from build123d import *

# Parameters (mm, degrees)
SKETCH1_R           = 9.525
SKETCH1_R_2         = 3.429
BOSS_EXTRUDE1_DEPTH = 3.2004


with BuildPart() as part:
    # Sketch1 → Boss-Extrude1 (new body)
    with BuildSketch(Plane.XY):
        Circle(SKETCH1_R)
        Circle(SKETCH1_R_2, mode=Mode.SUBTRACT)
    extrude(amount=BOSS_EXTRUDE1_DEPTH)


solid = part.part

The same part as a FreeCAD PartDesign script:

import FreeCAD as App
import Part
import Sketcher
Q = App.Units.Quantity

doc = App.newDocument("Part")
body = doc.addObject("PartDesign::Body", "Body")

sketch1 = doc.addObject("Sketcher::SketchObject", "Sketch")
body.addObject(sketch1)
sketch1.AttachmentSupport = (doc.XY_Plane, [""])
sketch1.MapMode = "FlatFace"
sketch1.addGeometry(Part.Circle(App.Vector(0, 0, 0), App.Vector(0, 0, 1), 9.5), False)
sketch1.addGeometry(Part.Circle(App.Vector(0, 0, 0), App.Vector(0, 0, 1), 3.4), False)
sketch1.addConstraint(Sketcher.Constraint("Coincident", 0, 3, -1, 1))
sketch1.addConstraint(Sketcher.Constraint("Coincident", 1, 3, -1, 1))
sketch1.addConstraint(Sketcher.Constraint("Diameter", 0, Q("0.75 in")))
sketch1.addConstraint(Sketcher.Constraint("Diameter", 1, Q("0.27 in")))
pad1 = doc.addObject("PartDesign::Pad", "Pad")
body.addObject(pad1)
pad1.Profile = sketch1
pad1.Length = Q("0.126 in")

doc.recompute()
